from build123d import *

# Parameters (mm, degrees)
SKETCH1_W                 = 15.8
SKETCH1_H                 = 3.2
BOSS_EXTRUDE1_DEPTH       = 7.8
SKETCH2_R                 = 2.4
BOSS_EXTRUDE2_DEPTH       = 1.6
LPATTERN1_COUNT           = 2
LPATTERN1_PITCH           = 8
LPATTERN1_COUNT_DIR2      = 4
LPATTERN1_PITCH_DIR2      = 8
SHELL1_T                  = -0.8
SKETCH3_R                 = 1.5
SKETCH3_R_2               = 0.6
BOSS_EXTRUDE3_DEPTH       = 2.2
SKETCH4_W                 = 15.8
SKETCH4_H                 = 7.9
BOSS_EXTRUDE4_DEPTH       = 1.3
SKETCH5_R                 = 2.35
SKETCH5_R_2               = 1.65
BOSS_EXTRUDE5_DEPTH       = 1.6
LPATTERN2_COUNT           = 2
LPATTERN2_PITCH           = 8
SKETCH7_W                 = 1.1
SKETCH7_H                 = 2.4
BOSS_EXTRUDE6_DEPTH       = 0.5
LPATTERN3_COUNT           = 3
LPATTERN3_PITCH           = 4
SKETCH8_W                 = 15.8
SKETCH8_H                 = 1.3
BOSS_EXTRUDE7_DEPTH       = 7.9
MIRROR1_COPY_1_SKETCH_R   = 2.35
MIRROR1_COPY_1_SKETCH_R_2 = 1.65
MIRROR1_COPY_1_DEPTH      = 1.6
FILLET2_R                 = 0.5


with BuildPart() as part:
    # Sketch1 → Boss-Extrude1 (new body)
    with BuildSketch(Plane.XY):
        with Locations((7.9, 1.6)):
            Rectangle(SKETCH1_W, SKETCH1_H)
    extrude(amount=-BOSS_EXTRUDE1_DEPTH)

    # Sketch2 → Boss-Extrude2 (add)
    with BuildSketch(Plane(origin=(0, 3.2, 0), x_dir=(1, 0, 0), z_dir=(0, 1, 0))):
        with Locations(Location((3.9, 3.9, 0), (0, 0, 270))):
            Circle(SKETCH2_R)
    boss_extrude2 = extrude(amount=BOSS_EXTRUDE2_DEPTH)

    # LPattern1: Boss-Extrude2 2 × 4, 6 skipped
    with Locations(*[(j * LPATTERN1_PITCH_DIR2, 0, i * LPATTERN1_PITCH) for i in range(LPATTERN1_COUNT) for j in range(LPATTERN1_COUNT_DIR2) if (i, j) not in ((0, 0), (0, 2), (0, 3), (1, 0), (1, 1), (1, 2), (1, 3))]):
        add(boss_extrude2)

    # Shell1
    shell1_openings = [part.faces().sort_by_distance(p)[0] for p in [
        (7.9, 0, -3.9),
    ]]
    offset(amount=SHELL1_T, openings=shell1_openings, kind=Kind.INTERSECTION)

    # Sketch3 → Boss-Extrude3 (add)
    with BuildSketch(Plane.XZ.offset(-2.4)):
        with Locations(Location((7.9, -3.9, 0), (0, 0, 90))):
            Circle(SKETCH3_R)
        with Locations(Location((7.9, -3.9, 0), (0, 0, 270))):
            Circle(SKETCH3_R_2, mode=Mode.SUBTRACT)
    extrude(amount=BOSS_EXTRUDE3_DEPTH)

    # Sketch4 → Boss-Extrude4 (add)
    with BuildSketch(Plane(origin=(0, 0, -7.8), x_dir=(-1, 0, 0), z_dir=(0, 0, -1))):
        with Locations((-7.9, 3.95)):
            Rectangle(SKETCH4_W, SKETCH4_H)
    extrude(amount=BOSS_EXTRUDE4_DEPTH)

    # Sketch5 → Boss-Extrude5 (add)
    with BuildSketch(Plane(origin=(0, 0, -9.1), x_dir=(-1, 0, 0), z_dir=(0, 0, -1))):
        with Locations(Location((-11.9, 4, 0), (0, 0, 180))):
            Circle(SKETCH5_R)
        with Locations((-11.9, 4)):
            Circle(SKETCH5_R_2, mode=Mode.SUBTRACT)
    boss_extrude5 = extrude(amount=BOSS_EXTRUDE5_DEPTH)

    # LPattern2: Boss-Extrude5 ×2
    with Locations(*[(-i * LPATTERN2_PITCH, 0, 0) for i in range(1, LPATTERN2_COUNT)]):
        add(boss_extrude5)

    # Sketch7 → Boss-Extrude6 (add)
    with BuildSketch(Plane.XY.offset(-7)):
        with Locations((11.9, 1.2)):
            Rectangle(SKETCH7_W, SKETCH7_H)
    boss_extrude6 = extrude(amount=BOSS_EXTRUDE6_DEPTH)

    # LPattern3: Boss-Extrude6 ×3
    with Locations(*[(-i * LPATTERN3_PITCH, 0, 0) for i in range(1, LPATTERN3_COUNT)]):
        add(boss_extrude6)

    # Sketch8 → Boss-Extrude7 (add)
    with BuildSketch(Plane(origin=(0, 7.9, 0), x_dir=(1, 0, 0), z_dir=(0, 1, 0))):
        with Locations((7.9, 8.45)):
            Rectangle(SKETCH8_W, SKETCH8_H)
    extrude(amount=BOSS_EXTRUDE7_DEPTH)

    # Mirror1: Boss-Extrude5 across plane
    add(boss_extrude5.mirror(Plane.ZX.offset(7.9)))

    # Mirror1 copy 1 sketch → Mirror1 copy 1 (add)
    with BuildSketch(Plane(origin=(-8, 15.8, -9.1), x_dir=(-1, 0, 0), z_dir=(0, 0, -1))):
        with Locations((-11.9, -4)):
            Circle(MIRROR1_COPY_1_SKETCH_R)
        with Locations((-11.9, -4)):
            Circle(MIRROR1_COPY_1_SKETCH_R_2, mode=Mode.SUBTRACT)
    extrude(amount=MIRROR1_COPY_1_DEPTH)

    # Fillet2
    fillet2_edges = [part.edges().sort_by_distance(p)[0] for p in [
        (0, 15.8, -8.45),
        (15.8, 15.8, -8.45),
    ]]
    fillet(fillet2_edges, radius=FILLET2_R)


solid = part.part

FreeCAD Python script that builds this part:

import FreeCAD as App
import Part
import Sketcher


def edges_at(feature, points):
    """Names of the edges that pass closest to the given points."""
    edges = feature.Shape.Edges
    near = lambda p: min(range(len(edges)), key=lambda i: edges[i].distToShape(Part.Vertex(*p))[0])
    return sorted({f"Edge{near(p) + 1}" for p in points})


def faces_at(feature, points):
    """Names of the faces that lie closest to the given points."""
    faces = feature.Shape.Faces
    near = lambda p: min(range(len(faces)), key=lambda i: faces[i].distToShape(Part.Vertex(*p))[0])
    return sorted({f"Face{near(p) + 1}" for p in points})


def add_polygon(sketch, points):
    """Adds a closed chain of lines whose ends are joined by coincident constraints."""
    first, n = sketch.GeometryCount, len(points)
    for a, b in zip(points, points[1:] + points[:1]):
        sketch.addGeometry(Part.LineSegment(App.Vector(*a, 0), App.Vector(*b, 0)), False)
    for i in range(n):
        sketch.addConstraint(Sketcher.Constraint("Coincident", first + i, 2, first + (i + 1) % n, 1))

doc = App.newDocument("Part")
body = doc.addObject("PartDesign::Body", "Body")

# Sketch on XY plane
sketch1 = doc.addObject("Sketcher::SketchObject", "Sketch")
body.addObject(sketch1)
sketch1.AttachmentSupport = (doc.XY_Plane, [""])
sketch1.MapMode = "FlatFace"
add_polygon(sketch1, [(0, 3.2), (0, 0), (15.8, 0), (15.8, 3.2)])  # lines 0-3
sketch1.addConstraint([
    Sketcher.Constraint("Vertical", 0),
    Sketcher.Constraint("Horizontal", 1),
    Sketcher.Constraint("Vertical", 2),
    Sketcher.Constraint("Horizontal", 3),
    Sketcher.Constraint("Coincident", 0, 2, -1, 1),
    Sketcher.Constraint("DistanceX", 1, 1, 1, 2, 15.8),
    Sketcher.Constraint("DistanceY", 0, 2, 0, 1, 3.2),
])
pad1 = doc.addObject("PartDesign::Pad", "Pad")
body.addObject(pad1)
pad1.Profile = sketch1
pad1.Length = 7.8
pad1.Reversed = True

# Sketch on XZ plane
sketch2 = doc.addObject("Sketcher::SketchObject", "Sketch001")
body.addObject(sketch2)
sketch2.AttachmentSupport = (doc.XZ_Plane, [""])
sketch2.MapMode = "FlatFace"
sketch2.AttachmentOffset = App.Placement(App.Vector(0, 0, -3.2), App.Rotation())
sketch2.addGeometry(Part.Circle(App.Vector(3.9, -3.9, 0), App.Vector(0, 0, 1), 2.4), False)
sketch2.addConstraint([
    Sketcher.Constraint("Diameter", 0, 4.8),
    Sketcher.Constraint("DistanceX", -1, 1, 0, 3, 3.9),
    Sketcher.Constraint("DistanceY", 0, 3, -1, 1, 3.9),
])
pad2 = doc.addObject("PartDesign::Pad", "Pad001")
body.addObject(pad2)
pad2.Profile = sketch2
pad2.Length = 1.6
pad2.Reversed = True
doc.recompute()

linearpattern = doc.addObject("PartDesign::LinearPattern", "LinearPattern")
body.addObject(linearpattern)
linearpattern.Originals = [pad2]
linearpattern.Direction = (doc.X_Axis, [""])
linearpattern.Mode = "offset"
linearpattern.Offset = 8
linearpattern.Occurrences = 2
body.Tip = linearpattern
doc.recompute()

thickness = doc.addObject("PartDesign::Thickness", "Thickness")
body.addObject(thickness)
thickness.Base = (linearpattern, faces_at(linearpattern, [(7.9, 0, -3.9)]))
thickness.Value = 0.8
thickness.Reversed = True
thickness.Join = "Intersection"

# Sketch on XZ plane
sketch3 = doc.addObject("Sketcher::SketchObject", "Sketch002")
body.addObject(sketch3)
sketch3.AttachmentSupport = (doc.XZ_Plane, [""])
sketch3.MapMode = "FlatFace"
sketch3.AttachmentOffset = App.Placement(App.Vector(0, 0, -2.4), App.Rotation())
sketch3.addGeometry([
    Part.Circle(App.Vector(7.9, -3.9, 0), App.Vector(0, 0, 1), 1.5),
    Part.Circle(App.Vector(7.9, -3.9, 0), App.Vector(0, 0, 1), 0.6),
], False)
sketch3.addConstraint([
    Sketcher.Constraint("Coincident", 1, 3, 0, 3),
    Sketcher.Constraint("Diameter", 0, 3.0),
    Sketcher.Constraint("Diameter", 1, 1.2),
    Sketcher.Constraint("DistanceX", -1, 1, 0, 3, 7.9),
    Sketcher.Constraint("DistanceY", 0, 3, -1, 1, 3.9),
])
pad3 = doc.addObject("PartDesign::Pad", "Pad002")
body.addObject(pad3)
pad3.Profile = sketch3
pad3.Length = 2.2

# Sketch on XY plane
sketch4 = doc.addObject("Sketcher::SketchObject", "Sketch003")
body.addObject(sketch4)
sketch4.AttachmentSupport = (doc.XY_Plane, [""])
sketch4.MapMode = "FlatFace"
sketch4.AttachmentOffset = App.Placement(App.Vector(0, 0, -7.8), App.Rotation())
add_polygon(sketch4, [(16, 8), (16, 0), (0, 0), (0, 8)])  # lines 0-3
sketch4.addConstraint([
    Sketcher.Constraint("Vertical", 0),
    Sketcher.Constraint("Horizontal", 1),
    Sketcher.Constraint("Vertical", 2),
    Sketcher.Constraint("Horizontal", 3),
    Sketcher.Constraint("Coincident", 1, 2, -1, 1),
    Sketcher.Constraint("DistanceX", 1, 2, 1, 1, 15.8),
    Sketcher.Constraint("DistanceY", 0, 2, 0, 1, 7.9),
])
pad4 = doc.addObject("PartDesign::Pad", "Pad003")
body.addObject(pad4)
pad4.Profile = sketch4
pad4.Length = 1.3
pad4.Reversed = True

# Sketch on XY plane
sketch5 = doc.addObject("Sketcher::SketchObject", "Sketch004")
body.addObject(sketch5)
sketch5.AttachmentSupport = (doc.XY_Plane, [""])
sketch5.MapMode = "FlatFace"
sketch5.AttachmentOffset = App.Placement(App.Vector(0, 0, -9.1), App.Rotation())
sketch5.addGeometry([
    Part.Circle(App.Vector(11.9, 4, 0), App.Vector(0, 0, 1), 2.4),
    Part.Circle(App.Vector(11.9, 4, 0), App.Vector(0, 0, 1), 1.6),
], False)
sketch5.addConstraint([
    Sketcher.Constraint("Coincident", 1, 3, 0, 3),
    Sketcher.Constraint("Diameter", 0, 4.7),
    Sketcher.Constraint("Diameter", 1, 3.3),
    Sketcher.Constraint("DistanceY", -1, 1, 0, 3, 4.0),
    Sketcher.Constraint("DistanceX", -1, 1, 0, 3, 11.9),
])
pad5 = doc.addObject("PartDesign::Pad", "Pad004")
body.addObject(pad5)
pad5.Profile = sketch5
pad5.Length = 1.6
pad5.Reversed = True
doc.recompute()

linearpattern2 = doc.addObject("PartDesign::LinearPattern", "LinearPattern001")
body.addObject(linearpattern2)
linearpattern2.Originals = [pad5]
linearpattern2.Direction = (doc.X_Axis, [""])
linearpattern2.Mode = "offset"
linearpattern2.Offset = 8
linearpattern2.Occurrences = 2
linearpattern2.Reversed = True
body.Tip = linearpattern2

# Sketch on XY plane
sketch6 = doc.addObject("Sketcher::SketchObject", "Sketch005")
body.addObject(sketch6)
sketch6.AttachmentSupport = (doc.XY_Plane, [""])
sketch6.MapMode = "FlatFace"
sketch6.AttachmentOffset = App.Placement(App.Vector(0, 0, -7), App.Rotation())
add_polygon(sketch6, [(11.3, 2.4), (11.3, 0), (12.4, 0), (12.4, 2.4)])  # lines 0-3
sketch6.addConstraint([
    Sketcher.Constraint("Vertical", 0),
    Sketcher.Constraint("Horizontal", 1),
    Sketcher.Constraint("Vertical", 2),
    Sketcher.Constraint("Horizontal", 3),
    Sketcher.Constraint("PointOnObject", 0, 2, -1),
    Sketcher.Constraint("DistanceX", 1, 1, 1, 2, 1.1),
    Sketcher.Constraint("DistanceY", 0, 2, 0, 1, 2.4),
    Sketcher.Constraint("DistanceX", -1, 1, 0, 2, 11.35),
])
pad6 = doc.addObject("PartDesign::Pad", "Pad005")
body.addObject(pad6)
pad6.Profile = sketch6
pad6.Length = 0.5
doc.recompute()

linearpattern3 = doc.addObject("PartDesign::LinearPattern", "LinearPattern002")
body.addObject(linearpattern3)
linearpattern3.Originals = [pad6]
linearpattern3.Direction = (doc.X_Axis, [""])
linearpattern3.Mode = "offset"
linearpattern3.Offset = 4
linearpattern3.Occurrences = 3
linearpattern3.Reversed = True
body.Tip = linearpattern3

# Sketch on XZ plane
sketch7 = doc.addObject("Sketcher::SketchObject", "Sketch006")
body.addObject(sketch7)
sketch7.AttachmentSupport = (doc.XZ_Plane, [""])
sketch7.MapMode = "FlatFace"
sketch7.AttachmentOffset = App.Placement(App.Vector(0, 0, -7.9), App.Rotation())
add_polygon(sketch7, [(0, -9.1), (0, -7.8), (15.8, -7.8), (15.8, -9.1)])  # lines 0-3
sketch7.addConstraint([
    Sketcher.Constraint("Vertical", 0),
    Sketcher.Constraint("Horizontal", 1),
    Sketcher.Constraint("Vertical", 2),
    Sketcher.Constraint("Horizontal", 3),
    Sketcher.Constraint("PointOnObject", 0, 2, -2),
    Sketcher.Constraint("DistanceX", 1, 1, 1, 2, 15.8),
    Sketcher.Constraint("DistanceY", 0, 1, 0, 2, 1.3),
    Sketcher.Constraint("DistanceY", 0, 2, -1, 1, 7.8),
])
pad7 = doc.addObject("PartDesign::Pad", "Pad006")
body.addObject(pad7)
pad7.Profile = sketch7
pad7.Length = 7.9
pad7.Reversed = True
doc.recompute()

datumplane = doc.addObject("PartDesign::Plane", "DatumPlane")
body.addObject(datumplane)
datumplane.AttachmentSupport = (doc.XZ_Plane, [""])
datumplane.MapMode = "FlatFace"
datumplane.AttachmentOffset = App.Placement(App.Vector(0, 0, -7.9), App.Rotation())
mirrored = doc.addObject("PartDesign::Mirrored", "Mirrored")
body.addObject(mirrored)
mirrored.Originals = [pad5]
mirrored.MirrorPlane = (datumplane, [""])
body.Tip = mirrored

# Sketch on XY plane
sketch8 = doc.addObject("Sketcher::SketchObject", "Sketch007")
body.addObject(sketch8)
sketch8.AttachmentSupport = (doc.XY_Plane, [""])
sketch8.MapMode = "FlatFace"
sketch8.AttachmentOffset = App.Placement(App.Vector(0, 0, -9.1), App.Rotation())
sketch8.addGeometry([
    Part.Circle(App.Vector(3.9, 11.8, 0), App.Vector(0, 0, 1), 2.4),
    Part.Circle(App.Vector(3.9, 11.8, 0), App.Vector(0, 0, 1), 1.6),
], False)
sketch8.addConstraint([
    Sketcher.Constraint("Coincident", 1, 3, 0, 3),
    Sketcher.Constraint("Diameter", 0, 4.7),
    Sketcher.Constraint("Diameter", 1, 3.3),
    Sketcher.Constraint("DistanceX", -1, 1, 0, 3, 3.9),
    Sketcher.Constraint("DistanceY", -1, 1, 0, 3, 11.8),
])
pad8 = doc.addObject("PartDesign::Pad", "Pad007")
body.addObject(pad8)
pad8.Profile = sketch8
pad8.Length = 1.6
pad8.Reversed = True
doc.recompute()

fillet = doc.addObject("PartDesign::Fillet", "Fillet")
body.addObject(fillet)
fillet.Base = (pad8, edges_at(pad8, [(0, 15.8, -8.45), (15.8, 15.8, -8.45)]))
fillet.Radius = 0.5

doc.recompute()
